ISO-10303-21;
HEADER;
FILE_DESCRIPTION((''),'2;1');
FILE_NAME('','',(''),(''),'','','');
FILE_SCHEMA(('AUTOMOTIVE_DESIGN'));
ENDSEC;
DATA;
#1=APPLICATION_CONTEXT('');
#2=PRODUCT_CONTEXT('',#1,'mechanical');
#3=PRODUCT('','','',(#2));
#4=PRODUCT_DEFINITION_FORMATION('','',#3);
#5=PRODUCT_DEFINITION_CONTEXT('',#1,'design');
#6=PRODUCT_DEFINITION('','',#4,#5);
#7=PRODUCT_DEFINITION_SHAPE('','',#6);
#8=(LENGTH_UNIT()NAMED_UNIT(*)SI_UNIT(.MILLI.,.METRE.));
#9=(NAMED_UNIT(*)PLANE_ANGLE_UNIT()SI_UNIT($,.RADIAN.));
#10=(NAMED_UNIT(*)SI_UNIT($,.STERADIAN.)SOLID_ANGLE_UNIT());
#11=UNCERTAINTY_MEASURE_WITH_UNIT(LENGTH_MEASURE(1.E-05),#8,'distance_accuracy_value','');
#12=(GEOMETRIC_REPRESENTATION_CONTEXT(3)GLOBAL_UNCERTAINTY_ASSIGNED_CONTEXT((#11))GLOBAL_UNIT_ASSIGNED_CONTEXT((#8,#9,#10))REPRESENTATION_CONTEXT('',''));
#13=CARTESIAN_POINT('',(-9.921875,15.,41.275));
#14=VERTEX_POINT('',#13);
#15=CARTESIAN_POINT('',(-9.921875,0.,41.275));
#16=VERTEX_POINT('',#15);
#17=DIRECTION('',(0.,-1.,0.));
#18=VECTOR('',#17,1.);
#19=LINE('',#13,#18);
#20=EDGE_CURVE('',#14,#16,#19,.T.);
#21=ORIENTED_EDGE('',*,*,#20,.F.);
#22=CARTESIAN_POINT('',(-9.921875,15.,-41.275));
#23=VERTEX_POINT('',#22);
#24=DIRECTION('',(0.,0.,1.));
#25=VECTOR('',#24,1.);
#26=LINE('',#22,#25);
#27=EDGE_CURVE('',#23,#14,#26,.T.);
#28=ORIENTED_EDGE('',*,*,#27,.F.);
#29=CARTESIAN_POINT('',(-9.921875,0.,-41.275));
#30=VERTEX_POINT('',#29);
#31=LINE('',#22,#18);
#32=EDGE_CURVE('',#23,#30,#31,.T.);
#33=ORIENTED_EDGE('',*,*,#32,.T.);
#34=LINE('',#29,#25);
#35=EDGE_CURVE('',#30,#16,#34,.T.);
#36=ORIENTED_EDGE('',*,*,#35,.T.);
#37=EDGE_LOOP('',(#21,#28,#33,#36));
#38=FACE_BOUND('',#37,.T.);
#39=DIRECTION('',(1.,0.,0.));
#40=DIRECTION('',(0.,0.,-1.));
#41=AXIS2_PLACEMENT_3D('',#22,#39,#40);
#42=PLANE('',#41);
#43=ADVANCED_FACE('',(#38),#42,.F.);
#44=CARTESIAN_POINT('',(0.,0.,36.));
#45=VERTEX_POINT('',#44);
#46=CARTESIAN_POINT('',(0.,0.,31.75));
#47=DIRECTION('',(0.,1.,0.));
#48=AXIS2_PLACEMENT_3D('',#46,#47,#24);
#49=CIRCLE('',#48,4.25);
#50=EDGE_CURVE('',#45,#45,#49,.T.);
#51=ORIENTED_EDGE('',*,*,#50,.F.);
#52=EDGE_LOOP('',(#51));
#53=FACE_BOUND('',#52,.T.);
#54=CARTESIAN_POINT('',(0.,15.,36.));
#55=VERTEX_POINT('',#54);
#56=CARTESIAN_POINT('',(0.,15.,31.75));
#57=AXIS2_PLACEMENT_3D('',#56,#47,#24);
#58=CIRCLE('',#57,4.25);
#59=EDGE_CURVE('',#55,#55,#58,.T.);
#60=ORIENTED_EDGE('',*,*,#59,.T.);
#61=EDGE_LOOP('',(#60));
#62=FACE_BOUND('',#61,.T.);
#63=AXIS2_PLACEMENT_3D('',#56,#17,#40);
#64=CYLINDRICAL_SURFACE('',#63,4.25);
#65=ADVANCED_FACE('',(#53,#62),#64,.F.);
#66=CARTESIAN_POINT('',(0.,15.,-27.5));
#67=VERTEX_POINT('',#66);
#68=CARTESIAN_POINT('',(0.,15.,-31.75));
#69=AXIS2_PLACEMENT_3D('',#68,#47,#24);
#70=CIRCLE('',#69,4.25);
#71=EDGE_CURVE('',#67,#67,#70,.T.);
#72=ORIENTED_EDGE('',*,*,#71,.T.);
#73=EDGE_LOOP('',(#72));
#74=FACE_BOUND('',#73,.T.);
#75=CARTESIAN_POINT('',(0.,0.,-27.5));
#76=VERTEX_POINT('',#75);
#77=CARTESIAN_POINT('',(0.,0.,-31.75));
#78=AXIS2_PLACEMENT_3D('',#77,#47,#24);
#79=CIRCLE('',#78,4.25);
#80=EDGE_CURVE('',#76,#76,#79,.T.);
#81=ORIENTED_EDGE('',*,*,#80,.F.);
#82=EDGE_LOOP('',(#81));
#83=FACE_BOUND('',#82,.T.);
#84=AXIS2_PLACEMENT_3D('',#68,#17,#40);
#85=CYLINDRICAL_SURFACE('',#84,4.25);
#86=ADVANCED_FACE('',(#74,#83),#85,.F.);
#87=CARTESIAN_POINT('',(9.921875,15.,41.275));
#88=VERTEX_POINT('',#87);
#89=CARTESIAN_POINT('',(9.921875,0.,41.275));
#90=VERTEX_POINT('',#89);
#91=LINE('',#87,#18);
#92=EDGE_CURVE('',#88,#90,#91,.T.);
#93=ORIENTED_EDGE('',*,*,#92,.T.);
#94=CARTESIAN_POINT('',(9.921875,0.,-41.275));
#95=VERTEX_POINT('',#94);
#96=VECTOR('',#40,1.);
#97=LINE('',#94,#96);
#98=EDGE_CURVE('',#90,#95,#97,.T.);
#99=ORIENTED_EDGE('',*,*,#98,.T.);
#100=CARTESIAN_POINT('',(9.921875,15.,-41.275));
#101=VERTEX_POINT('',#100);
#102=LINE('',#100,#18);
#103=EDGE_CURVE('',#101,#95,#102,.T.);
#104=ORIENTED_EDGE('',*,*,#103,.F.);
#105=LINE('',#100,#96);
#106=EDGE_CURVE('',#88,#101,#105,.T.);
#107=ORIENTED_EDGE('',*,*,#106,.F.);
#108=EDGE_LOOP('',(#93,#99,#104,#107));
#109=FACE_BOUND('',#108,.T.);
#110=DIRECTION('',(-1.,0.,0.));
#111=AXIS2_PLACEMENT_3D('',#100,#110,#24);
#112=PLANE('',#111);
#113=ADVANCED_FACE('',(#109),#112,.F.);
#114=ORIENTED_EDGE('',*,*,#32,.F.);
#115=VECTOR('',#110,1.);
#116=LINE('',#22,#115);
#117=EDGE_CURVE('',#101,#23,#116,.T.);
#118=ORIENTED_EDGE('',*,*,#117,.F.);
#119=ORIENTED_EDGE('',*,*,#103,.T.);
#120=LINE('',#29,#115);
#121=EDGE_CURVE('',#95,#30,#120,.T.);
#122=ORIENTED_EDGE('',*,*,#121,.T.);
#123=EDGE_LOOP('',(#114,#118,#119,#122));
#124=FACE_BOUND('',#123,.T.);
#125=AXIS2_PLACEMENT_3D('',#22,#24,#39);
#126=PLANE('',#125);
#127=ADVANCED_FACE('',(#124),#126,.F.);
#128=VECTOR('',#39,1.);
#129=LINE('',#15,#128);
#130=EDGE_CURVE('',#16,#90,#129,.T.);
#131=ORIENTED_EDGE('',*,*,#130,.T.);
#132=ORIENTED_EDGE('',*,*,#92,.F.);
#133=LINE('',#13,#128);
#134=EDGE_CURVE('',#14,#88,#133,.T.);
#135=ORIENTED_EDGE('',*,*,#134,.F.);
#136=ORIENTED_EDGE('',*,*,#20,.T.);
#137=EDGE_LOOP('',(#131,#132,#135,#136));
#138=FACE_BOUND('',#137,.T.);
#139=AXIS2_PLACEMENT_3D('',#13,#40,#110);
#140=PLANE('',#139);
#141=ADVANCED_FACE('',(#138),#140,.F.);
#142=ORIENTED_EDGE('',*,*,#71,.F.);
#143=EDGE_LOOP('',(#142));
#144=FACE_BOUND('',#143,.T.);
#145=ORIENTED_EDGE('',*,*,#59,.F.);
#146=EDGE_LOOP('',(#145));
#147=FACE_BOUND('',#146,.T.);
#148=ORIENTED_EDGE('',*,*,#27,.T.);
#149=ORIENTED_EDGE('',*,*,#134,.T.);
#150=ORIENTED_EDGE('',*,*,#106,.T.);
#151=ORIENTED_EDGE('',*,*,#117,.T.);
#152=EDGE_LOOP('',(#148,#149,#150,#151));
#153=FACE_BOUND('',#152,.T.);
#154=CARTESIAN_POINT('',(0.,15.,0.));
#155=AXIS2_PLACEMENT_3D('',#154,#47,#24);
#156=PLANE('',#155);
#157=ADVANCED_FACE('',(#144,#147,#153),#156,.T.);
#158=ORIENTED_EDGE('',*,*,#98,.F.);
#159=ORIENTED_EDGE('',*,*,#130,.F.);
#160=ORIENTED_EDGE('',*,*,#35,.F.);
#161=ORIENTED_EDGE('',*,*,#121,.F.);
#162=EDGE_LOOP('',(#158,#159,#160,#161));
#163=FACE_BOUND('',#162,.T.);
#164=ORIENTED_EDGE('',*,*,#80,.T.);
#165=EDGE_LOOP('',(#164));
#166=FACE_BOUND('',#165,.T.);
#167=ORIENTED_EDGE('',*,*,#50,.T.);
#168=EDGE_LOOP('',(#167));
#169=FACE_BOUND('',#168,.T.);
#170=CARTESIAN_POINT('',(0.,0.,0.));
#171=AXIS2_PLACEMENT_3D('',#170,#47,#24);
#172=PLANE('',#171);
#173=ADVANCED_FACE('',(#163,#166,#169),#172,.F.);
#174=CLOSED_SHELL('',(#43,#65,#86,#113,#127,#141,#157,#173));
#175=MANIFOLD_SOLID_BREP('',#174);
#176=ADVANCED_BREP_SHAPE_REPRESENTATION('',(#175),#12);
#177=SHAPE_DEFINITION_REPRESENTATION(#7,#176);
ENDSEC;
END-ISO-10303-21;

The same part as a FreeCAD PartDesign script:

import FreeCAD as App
import Part
import Sketcher

V = App.Vector
Q = App.Units.Quantity


def add_polygon(sketch, points):
    """Adds a closed chain of lines whose ends are joined by coincident constraints."""
    first, n = sketch.GeometryCount, len(points)
    for a, b in zip(points, points[1:] + points[:1]):
        sketch.addGeometry(Part.LineSegment(App.Vector(*a, 0), App.Vector(*b, 0)), False)
    for i in range(n):
        sketch.addConstraint(Sketcher.Constraint("Coincident", first + i, 2, first + (i + 1) % n, 1))

doc = App.newDocument("Part")
body = doc.addObject("PartDesign::Body", "Body")

# Sketch on XZ plane
sketch1 = body.newObject("Sketcher::SketchObject", "Sketch")
sketch1.AttachmentSupport = (doc.getObject("XZ_Plane"), [""])
sketch1.MapMode = "FlatFace"
add_polygon(sketch1, [(-9.921875, -41.275), (-9.921875, 41.275), (9.921875, 41.275), (9.921875, -41.275)])  # lines 0-3
sketch1.addGeometry(Part.Circle(V(0, 31.75, 0), V(0, 0, 1), 4.25), False)  # 4
sketch1.addGeometry(Part.Circle(V(0, -31.75, 0), V(0, 0, 1), 4.25), False)  # 5
sketch1.addConstraint(Sketcher.Constraint("Vertical", 0))
sketch1.addConstraint(Sketcher.Constraint("Horizontal", 1))
sketch1.addConstraint(Sketcher.Constraint("Vertical", 2))
sketch1.addConstraint(Sketcher.Constraint("Horizontal", 3))
sketch1.addConstraint(Sketcher.Constraint("Equal", 4, 5))
sketch1.addConstraint(Sketcher.Constraint("Symmetric", 4, 3, 5, 3, -1, 1))
sketch1.addConstraint(Sketcher.Constraint("Symmetric", 0, 2, 2, 2, -1, 1))
sketch1.addConstraint(Sketcher.Constraint("PointOnObject", 4, 3, -2))
sketch1.addConstraint(Sketcher.Constraint("Diameter", 4, Q("8.5 mm")))
sketch1.addConstraint(Sketcher.Constraint("DistanceY", 0, 1, 0, 2, Q("82.55 mm")))
sketch1.addConstraint(Sketcher.Constraint("DistanceY", 5, 3, 4, 3, Q("63.5 mm")))
sketch1.addConstraint(Sketcher.Constraint("DistanceX", 1, 1, 1, 2, Q("19.84375 mm")))
pad1 = body.newObject("PartDesign::Pad", "Pad")
pad1.Profile = sketch1
pad1.Length = 15
pad1.Reversed = True

doc.recompute()
